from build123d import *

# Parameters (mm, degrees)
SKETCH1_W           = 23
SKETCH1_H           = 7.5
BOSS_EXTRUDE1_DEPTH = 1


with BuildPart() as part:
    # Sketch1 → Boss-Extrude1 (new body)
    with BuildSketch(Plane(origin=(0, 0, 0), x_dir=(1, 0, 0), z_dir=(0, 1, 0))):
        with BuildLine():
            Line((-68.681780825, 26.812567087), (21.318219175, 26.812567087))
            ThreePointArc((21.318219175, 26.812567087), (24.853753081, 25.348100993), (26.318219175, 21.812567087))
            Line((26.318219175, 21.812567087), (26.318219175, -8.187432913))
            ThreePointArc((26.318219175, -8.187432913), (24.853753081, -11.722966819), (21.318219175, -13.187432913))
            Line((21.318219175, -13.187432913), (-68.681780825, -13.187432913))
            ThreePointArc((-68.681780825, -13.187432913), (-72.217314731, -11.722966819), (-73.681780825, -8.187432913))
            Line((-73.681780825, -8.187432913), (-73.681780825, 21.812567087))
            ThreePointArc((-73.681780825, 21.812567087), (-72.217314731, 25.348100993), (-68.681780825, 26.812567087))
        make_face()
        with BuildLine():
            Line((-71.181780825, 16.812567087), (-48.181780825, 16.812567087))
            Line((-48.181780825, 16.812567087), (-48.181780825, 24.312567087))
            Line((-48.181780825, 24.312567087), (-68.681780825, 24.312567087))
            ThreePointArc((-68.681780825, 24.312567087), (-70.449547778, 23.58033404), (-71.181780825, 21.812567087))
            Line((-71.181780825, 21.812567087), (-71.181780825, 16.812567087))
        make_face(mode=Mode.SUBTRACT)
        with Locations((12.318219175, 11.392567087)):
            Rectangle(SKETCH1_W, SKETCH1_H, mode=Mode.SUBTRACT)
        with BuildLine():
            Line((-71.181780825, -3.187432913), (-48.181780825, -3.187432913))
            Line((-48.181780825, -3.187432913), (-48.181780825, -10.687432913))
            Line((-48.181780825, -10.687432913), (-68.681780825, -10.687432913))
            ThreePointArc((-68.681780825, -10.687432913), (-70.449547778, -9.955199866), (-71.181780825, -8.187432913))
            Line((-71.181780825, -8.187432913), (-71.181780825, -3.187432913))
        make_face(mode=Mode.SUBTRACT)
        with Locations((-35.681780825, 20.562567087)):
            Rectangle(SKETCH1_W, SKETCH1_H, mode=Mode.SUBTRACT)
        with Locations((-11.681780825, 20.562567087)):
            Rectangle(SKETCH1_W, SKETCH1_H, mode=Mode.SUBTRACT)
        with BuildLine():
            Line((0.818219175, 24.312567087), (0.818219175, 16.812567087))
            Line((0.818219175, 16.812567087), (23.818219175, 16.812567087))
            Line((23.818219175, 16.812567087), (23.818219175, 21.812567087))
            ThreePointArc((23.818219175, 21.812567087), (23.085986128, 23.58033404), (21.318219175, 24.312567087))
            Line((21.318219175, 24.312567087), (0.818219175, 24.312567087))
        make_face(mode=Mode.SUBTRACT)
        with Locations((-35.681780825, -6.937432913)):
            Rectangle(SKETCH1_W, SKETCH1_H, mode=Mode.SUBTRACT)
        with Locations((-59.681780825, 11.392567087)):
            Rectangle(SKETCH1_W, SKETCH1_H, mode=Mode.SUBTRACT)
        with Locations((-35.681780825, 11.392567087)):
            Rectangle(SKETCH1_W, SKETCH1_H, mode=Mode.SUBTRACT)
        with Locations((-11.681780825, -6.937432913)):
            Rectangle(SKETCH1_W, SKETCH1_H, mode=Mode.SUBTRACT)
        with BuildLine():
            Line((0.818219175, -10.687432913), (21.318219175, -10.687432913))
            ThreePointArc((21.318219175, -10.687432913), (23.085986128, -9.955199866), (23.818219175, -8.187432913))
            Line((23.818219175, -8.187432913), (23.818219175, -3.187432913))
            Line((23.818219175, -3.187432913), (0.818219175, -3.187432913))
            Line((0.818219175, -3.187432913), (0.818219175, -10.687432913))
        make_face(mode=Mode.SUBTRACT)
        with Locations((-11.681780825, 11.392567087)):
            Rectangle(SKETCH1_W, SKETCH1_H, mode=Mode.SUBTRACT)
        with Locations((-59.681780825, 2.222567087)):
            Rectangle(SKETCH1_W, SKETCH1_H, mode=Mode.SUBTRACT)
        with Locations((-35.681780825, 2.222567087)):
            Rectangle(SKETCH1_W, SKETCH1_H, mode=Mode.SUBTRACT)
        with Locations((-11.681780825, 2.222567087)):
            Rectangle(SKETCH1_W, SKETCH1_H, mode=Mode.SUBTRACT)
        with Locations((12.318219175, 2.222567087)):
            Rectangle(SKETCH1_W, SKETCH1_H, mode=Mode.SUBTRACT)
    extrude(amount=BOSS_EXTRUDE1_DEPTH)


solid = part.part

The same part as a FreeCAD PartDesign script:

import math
import FreeCAD as App
import Part
import Sketcher
from FreeCAD import Vector

doc = App.newDocument("Part")
params = doc.addObject("Spreadsheet::Sheet", "Params")
for row, (alias, value) in enumerate([
    ("sketch1_radius", "5 mm"),
    ("sketch1_radius2", "2.5 mm"),
    ("sketch1_width", "90 mm"),
    ("sketch1_width2", "23 mm"),
    ("sketch1_height", "30 mm"),
    ("pad1_length", "1 mm"),
], start=1):
    params.set(f"A{row}", alias)
    params.set(f"B{row}", "=" + value)
    params.setAlias(f"B{row}", alias)

body = doc.addObject("PartDesign::Body", "Body")

sketch1 = body.newObject("Sketcher::SketchObject", "Sketch")
sketch1.AttachmentSupport = (doc.getObject("XZ_Plane"), [""])
sketch1.MapMode = "FlatFace"
sketch1.addGeometry([
    Part.LineSegment(Vector(21.318219, -26.812567, 0), Vector(-68.681781, -26.812567, 0)),
    Part.ArcOfCircle(Part.Circle(Vector(-68.681781, -21.812567, 0), Vector(0, 0, 1), 5), math.radians(180), math.radians(270)),
    Part.LineSegment(Vector(-73.681781, -21.812567, 0), Vector(-73.681781, 8.187433, 0)),
    Part.ArcOfCircle(Part.Circle(Vector(-68.681781, 8.187433, 0), Vector(0, 0, 1), 5), math.radians(90), math.radians(180)),
    Part.LineSegment(Vector(-68.681781, 13.187433, 0), Vector(21.318219, 13.187433, 0)),
    Part.ArcOfCircle(Part.Circle(Vector(21.318219, 8.187433, 0), Vector(0, 0, 1), 5), math.radians(0), math.radians(90)),
    Part.LineSegment(Vector(26.318219, 8.187433, 0), Vector(26.318219, -21.812567, 0)),
    Part.ArcOfCircle(Part.Circle(Vector(21.318219, -21.812567, 0), Vector(0, 0, 1), 5), math.radians(-90), math.radians(0)),
    Part.LineSegment(Vector(0.818219, 10.687433, 0), Vector(0.818219, 3.187433, 0)),
    Part.LineSegment(Vector(0.818219, 3.187433, 0), Vector(23.818219, 3.187433, 0)),
    Part.LineSegment(Vector(23.818219, 3.187433, 0), Vector(23.818219, 8.187433, 0)),
    Part.ArcOfCircle(Part.Circle(Vector(21.318219, 8.187433, 0), Vector(0, 0, 1), 2.5), math.radians(0), math.radians(90)),
    Part.LineSegment(Vector(21.318219, 10.687433, 0), Vector(0.818219, 10.687433, 0)),
    Part.LineSegment(Vector(-23.181781, 10.687433, 0), Vector(-23.181781, 3.187433, 0)),
    Part.LineSegment(Vector(-23.181781, 3.187433, 0), Vector(-0.181781, 3.187433, 0)),
    Part.LineSegment(Vector(-0.181781, 3.187433, 0), Vector(-0.181781, 10.687433, 0)),
    Part.LineSegment(Vector(-0.181781, 10.687433, 0), Vector(-23.181781, 10.687433, 0)),
    Part.LineSegment(Vector(0.818219, 1.527433, 0), Vector(0.818219, -5.972567, 0)),
    Part.LineSegment(Vector(0.818219, -5.972567, 0), Vector(23.818219, -5.972567, 0)),
    Part.LineSegment(Vector(23.818219, -5.972567, 0), Vector(23.818219, 1.527433, 0)),
    Part.LineSegment(Vector(23.818219, 1.527433, 0), Vector(0.818219, 1.527433, 0)),
    Part.LineSegment(Vector(-23.181781, 1.527433, 0), Vector(-23.181781, -5.972567, 0)),
    Part.LineSegment(Vector(-23.181781, -5.972567, 0), Vector(-0.181781, -5.972567, 0)),
    Part.LineSegment(Vector(-0.181781, -5.972567, 0), Vector(-0.181781, 1.527433, 0)),
    Part.LineSegment(Vector(-0.181781, 1.527433, 0), Vector(-23.181781, 1.527433, 0)),
    Part.LineSegment(Vector(-47.181781, 10.687433, 0), Vector(-47.181781, 3.187433, 0)),
    Part.LineSegment(Vector(-47.181781, 3.187433, 0), Vector(-24.181781, 3.187433, 0)),
    Part.LineSegment(Vector(-24.181781, 3.187433, 0), Vector(-24.181781, 10.687433, 0)),
    Part.LineSegment(Vector(-24.181781, 10.687433, 0), Vector(-47.181781, 10.687433, 0)),
    Part.LineSegment(Vector(-71.181781, 3.187433, 0), Vector(-48.181781, 3.187433, 0)),
    Part.LineSegment(Vector(-48.181781, 3.187433, 0), Vector(-48.181781, 10.687433, 0)),
    Part.LineSegment(Vector(-48.181781, 10.687433, 0), Vector(-68.681781, 10.687433, 0)),
    Part.ArcOfCircle(Part.Circle(Vector(-68.681781, 8.187433, 0), Vector(0, 0, 1), 2.5), math.radians(90), math.radians(180)),
    Part.LineSegment(Vector(-71.181781, 8.187433, 0), Vector(-71.181781, 3.187433, 0)),
    Part.LineSegment(Vector(-47.181781, 1.527433, 0), Vector(-47.181781, -5.972567, 0)),
    Part.LineSegment(Vector(-47.181781, -5.972567, 0), Vector(-24.181781, -5.972567, 0)),
    Part.LineSegment(Vector(-24.181781, -5.972567, 0), Vector(-24.181781, 1.527433, 0)),
    Part.LineSegment(Vector(-24.181781, 1.527433, 0), Vector(-47.181781, 1.527433, 0)),
    Part.LineSegment(Vector(-71.181781, 1.527433, 0), Vector(-71.181781, -5.972567, 0)),
    Part.LineSegment(Vector(-71.181781, -5.972567, 0), Vector(-48.181781, -5.972567, 0)),
    Part.LineSegment(Vector(-48.181781, -5.972567, 0), Vector(-48.181781, 1.527433, 0)),
    Part.LineSegment(Vector(-48.181781, 1.527433, 0), Vector(-71.181781, 1.527433, 0)),
    Part.LineSegment(Vector(0.818219, -7.642567, 0), Vector(0.818219, -15.142567, 0)),
    Part.LineSegment(Vector(0.818219, -15.142567, 0), Vector(23.818219, -15.142567, 0)),
    Part.LineSegment(Vector(23.818219, -15.142567, 0), Vector(23.818219, -7.642567, 0)),
    Part.LineSegment(Vector(23.818219, -7.642567, 0), Vector(0.818219, -7.642567, 0)),
    Part.LineSegment(Vector(-23.181781, -7.642567, 0), Vector(-23.181781, -15.142567, 0)),
    Part.LineSegment(Vector(-23.181781, -15.142567, 0), Vector(-0.181781, -15.142567, 0)),
    Part.LineSegment(Vector(-0.181781, -15.142567, 0), Vector(-0.181781, -7.642567, 0)),
    Part.LineSegment(Vector(-0.181781, -7.642567, 0), Vector(-23.181781, -7.642567, 0)),
    Part.LineSegment(Vector(0.818219, -24.312567, 0), Vector(21.318219, -24.312567, 0)),
    Part.ArcOfCircle(Part.Circle(Vector(21.318219, -21.812567, 0), Vector(0, 0, 1), 2.5), math.radians(-90), math.radians(0)),
    Part.LineSegment(Vector(23.818219, -21.812567, 0), Vector(23.818219, -16.812567, 0)),
    Part.LineSegment(Vector(23.818219, -16.812567, 0), Vector(0.818219, -16.812567, 0)),
    Part.LineSegment(Vector(0.818219, -16.812567, 0), Vector(0.818219, -24.312567, 0)),
    Part.LineSegment(Vector(-23.181781, -16.812567, 0), Vector(-23.181781, -24.312567, 0)),
    Part.LineSegment(Vector(-23.181781, -24.312567, 0), Vector(-0.181781, -24.312567, 0)),
    Part.LineSegment(Vector(-0.181781, -24.312567, 0), Vector(-0.181781, -16.812567, 0)),
    Part.LineSegment(Vector(-0.181781, -16.812567, 0), Vector(-23.181781, -16.812567, 0)),
    Part.LineSegment(Vector(-47.181781, -7.642567, 0), Vector(-47.181781, -15.142567, 0)),
    Part.LineSegment(Vector(-47.181781, -15.142567, 0), Vector(-24.181781, -15.142567, 0)),
    Part.LineSegment(Vector(-24.181781, -15.142567, 0), Vector(-24.181781, -7.642567, 0)),
    Part.LineSegment(Vector(-24.181781, -7.642567, 0), Vector(-47.181781, -7.642567, 0)),
    Part.LineSegment(Vector(-71.181781, -7.642567, 0), Vector(-71.181781, -15.142567, 0)),
    Part.LineSegment(Vector(-71.181781, -15.142567, 0), Vector(-48.181781, -15.142567, 0)),
    Part.LineSegment(Vector(-48.181781, -15.142567, 0), Vector(-48.181781, -7.642567, 0)),
    Part.LineSegment(Vector(-48.181781, -7.642567, 0), Vector(-71.181781, -7.642567, 0)),
    Part.LineSegment(Vector(-47.181781, -16.812567, 0), Vector(-47.181781, -24.312567, 0)),
    Part.LineSegment(Vector(-47.181781, -24.312567, 0), Vector(-24.181781, -24.312567, 0)),
    Part.LineSegment(Vector(-24.181781, -24.312567, 0), Vector(-24.181781, -16.812567, 0)),
    Part.LineSegment(Vector(-24.181781, -16.812567, 0), Vector(-47.181781, -16.812567, 0)),
    Part.LineSegment(Vector(-71.181781, -16.812567, 0), Vector(-71.181781, -21.812567, 0)),
    Part.ArcOfCircle(Part.Circle(Vector(-68.681781, -21.812567, 0), Vector(0, 0, 1), 2.5), math.radians(180), math.radians(270)),
    Part.LineSegment(Vector(-68.681781, -24.312567, 0), Vector(-48.181781, -24.312567, 0)),
    Part.LineSegment(Vector(-48.181781, -24.312567, 0), Vector(-48.181781, -16.812567, 0)),
    Part.LineSegment(Vector(-48.181781, -16.812567, 0), Vector(-71.181781, -16.812567, 0)),
], False)
sketch1.addConstraint([
    Sketcher.Constraint("Tangent", 0, 2, 1, 2),
    Sketcher.Constraint("Tangent", 1, 1, 2, 1),
    Sketcher.Constraint("Tangent", 2, 2, 3, 2),
    Sketcher.Constraint("Tangent", 3, 1, 4, 1),
    Sketcher.Constraint("Tangent", 4, 2, 5, 2),
    Sketcher.Constraint("Tangent", 5, 1, 6, 1),
    Sketcher.Constraint("Tangent", 6, 2, 7, 2),
    Sketcher.Constraint("Tangent", 7, 1, 0, 1),
    Sketcher.Constraint("Coincident", 8, 2, 9, 1),
    Sketcher.Constraint("Coincident", 9, 2, 10, 1),
    Sketcher.Constraint("Tangent", 10, 2, 11, 1),
    Sketcher.Constraint("Tangent", 11, 2, 12, 1),
    Sketcher.Constraint("Coincident", 12, 2, 8, 1),
    Sketcher.Constraint("Coincident", 13, 2, 14, 1),
    Sketcher.Constraint("Coincident", 14, 2, 15, 1),
    Sketcher.Constraint("Coincident", 15, 2, 16, 1),
    Sketcher.Constraint("Coincident", 16, 2, 13, 1),
    Sketcher.Constraint("Coincident", 17, 2, 18, 1),
    Sketcher.Constraint("Coincident", 18, 2, 19, 1),
    Sketcher.Constraint("Coincident", 19, 2, 20, 1),
    Sketcher.Constraint("Coincident", 20, 2, 17, 1),
    Sketcher.Constraint("Coincident", 21, 2, 22, 1),
    Sketcher.Constraint("Coincident", 22, 2, 23, 1),
    Sketcher.Constraint("Coincident", 23, 2, 24, 1),
    Sketcher.Constraint("Coincident", 24, 2, 21, 1),
    Sketcher.Constraint("Coincident", 25, 2, 26, 1),
    Sketcher.Constraint("Coincident", 26, 2, 27, 1),
    Sketcher.Constraint("Coincident", 27, 2, 28, 1),
    Sketcher.Constraint("Coincident", 28, 2, 25, 1),
    Sketcher.Constraint("Coincident", 29, 2, 30, 1),
    Sketcher.Constraint("Coincident", 30, 2, 31, 1),
    Sketcher.Constraint("Tangent", 31, 2, 32, 1),
    Sketcher.Constraint("Tangent", 32, 2, 33, 1),
    Sketcher.Constraint("Coincident", 33, 2, 29, 1),
    Sketcher.Constraint("Coincident", 34, 2, 35, 1),
    Sketcher.Constraint("Coincident", 35, 2, 36, 1),
    Sketcher.Constraint("Coincident", 36, 2, 37, 1),
    Sketcher.Constraint("Coincident", 37, 2, 34, 1),
    Sketcher.Constraint("Coincident", 38, 2, 39, 1),
    Sketcher.Constraint("Coincident", 39, 2, 40, 1),
    Sketcher.Constraint("Coincident", 40, 2, 41, 1),
    Sketcher.Constraint("Coincident", 41, 2, 38, 1),
    Sketcher.Constraint("Coincident", 42, 2, 43, 1),
    Sketcher.Constraint("Coincident", 43, 2, 44, 1),
    Sketcher.Constraint("Coincident", 44, 2, 45, 1),
    Sketcher.Constraint("Coincident", 45, 2, 42, 1),
    Sketcher.Constraint("Coincident", 46, 2, 47, 1),
    Sketcher.Constraint("Coincident", 47, 2, 48, 1),
    Sketcher.Constraint("Coincident", 48, 2, 49, 1),
    Sketcher.Constraint("Coincident", 49, 2, 46, 1),
    Sketcher.Constraint("Tangent", 50, 2, 51, 1),
    Sketcher.Constraint("Tangent", 51, 2, 52, 1),
    Sketcher.Constraint("Coincident", 52, 2, 53, 1),
    Sketcher.Constraint("Coincident", 53, 2, 54, 1),
    Sketcher.Constraint("Coincident", 54, 2, 50, 1),
    Sketcher.Constraint("Coincident", 55, 2, 56, 1),
    Sketcher.Constraint("Coincident", 56, 2, 57, 1),
    Sketcher.Constraint("Coincident", 57, 2, 58, 1),
    Sketcher.Constraint("Coincident", 58, 2, 55, 1),
    Sketcher.Constraint("Coincident", 59, 2, 60, 1),
    Sketcher.Constraint("Coincident", 60, 2, 61, 1),
    Sketcher.Constraint("Coincident", 61, 2, 62, 1),
    Sketcher.Constraint("Coincident", 62, 2, 59, 1),
    Sketcher.Constraint("Coincident", 63, 2, 64, 1),
    Sketcher.Constraint("Coincident", 64, 2, 65, 1),
    Sketcher.Constraint("Coincident", 65, 2, 66, 1),
    Sketcher.Constraint("Coincident", 66, 2, 63, 1),
    Sketcher.Constraint("Coincident", 67, 2, 68, 1),
    Sketcher.Constraint("Coincident", 68, 2, 69, 1),
    Sketcher.Constraint("Coincident", 69, 2, 70, 1),
    Sketcher.Constraint("Coincident", 70, 2, 67, 1),
    Sketcher.Constraint("Tangent", 71, 2, 72, 1),
    Sketcher.Constraint("Tangent", 72, 2, 73, 1),
    Sketcher.Constraint("Coincident", 73, 2, 74, 1),
    Sketcher.Constraint("Coincident", 74, 2, 75, 1),
    Sketcher.Constraint("Coincident", 75, 2, 71, 1),
    Sketcher.Constraint("Horizontal", 0),
    Sketcher.Constraint("Vertical", 2),
    Sketcher.Constraint("Horizontal", 4),
    Sketcher.Constraint("Vertical", 6),
    Sketcher.Constraint("Vertical", 8),
    Sketcher.Constraint("Horizontal", 9),
    Sketcher.Constraint("Vertical", 10),
    Sketcher.Constraint("Horizontal", 12),
    Sketcher.Constraint("Vertical", 13),
    Sketcher.Constraint("Horizontal", 14),
    Sketcher.Constraint("Vertical", 15),
    Sketcher.Constraint("Horizontal", 16),
    Sketcher.Constraint("Vertical", 17),
    Sketcher.Constraint("Horizontal", 18),
    Sketcher.Constraint("Vertical", 19),
    Sketcher.Constraint("Horizontal", 20),
    Sketcher.Constraint("Vertical", 21),
    Sketcher.Constraint("Horizontal", 22),
    Sketcher.Constraint("Vertical", 23),
    Sketcher.Constraint("Horizontal", 24),
    Sketcher.Constraint("Vertical", 25),
    Sketcher.Constraint("Horizontal", 26),
    Sketcher.Constraint("Vertical", 27),
    Sketcher.Constraint("Horizontal", 28),
    Sketcher.Constraint("Horizontal", 29),
    Sketcher.Constraint("Vertical", 30),
    Sketcher.Constraint("Horizontal", 31),
    Sketcher.Constraint("Vertical", 33),
    Sketcher.Constraint("Vertical", 34),
    Sketcher.Constraint("Horizontal", 35),
    Sketcher.Constraint("Vertical", 36),
    Sketcher.Constraint("Horizontal", 37),
    Sketcher.Constraint("Vertical", 38),
    Sketcher.Constraint("Horizontal", 39),
    Sketcher.Constraint("Vertical", 40),
    Sketcher.Constraint("Horizontal", 41),
    Sketcher.Constraint("Vertical", 42),
    Sketcher.Constraint("Horizontal", 43),
    Sketcher.Constraint("Vertical", 44),
    Sketcher.Constraint("Horizontal", 45),
    Sketcher.Constraint("Vertical", 46),
    Sketcher.Constraint("Horizontal", 47),
    Sketcher.Constraint("Vertical", 48),
    Sketcher.Constraint("Horizontal", 49),
    Sketcher.Constraint("Horizontal", 50),
    Sketcher.Constraint("Vertical", 52),
    Sketcher.Constraint("Horizontal", 53),
    Sketcher.Constraint("Vertical", 54),
    Sketcher.Constraint("Vertical", 55),
    Sketcher.Constraint("Horizontal", 56),
    Sketcher.Constraint("Vertical", 57),
    Sketcher.Constraint("Horizontal", 58),
    Sketcher.Constraint("Vertical", 59),
    Sketcher.Constraint("Horizontal", 60),
    Sketcher.Constraint("Vertical", 61),
    Sketcher.Constraint("Horizontal", 62),
    Sketcher.Constraint("Vertical", 63),
    Sketcher.Constraint("Horizontal", 64),
    Sketcher.Constraint("Vertical", 65),
    Sketcher.Constraint("Horizontal", 66),
    Sketcher.Constraint("Vertical", 67),
    Sketcher.Constraint("Horizontal", 68),
    Sketcher.Constraint("Vertical", 69),
    Sketcher.Constraint("Horizontal", 70),
    Sketcher.Constraint("Vertical", 71),
    Sketcher.Constraint("Horizontal", 73),
    Sketcher.Constraint("Vertical", 74),
    Sketcher.Constraint("Horizontal", 75),
    Sketcher.Constraint("Coincident", 11, 3, 5, 3),
    Sketcher.Constraint("Coincident", 32, 3, 3, 3),
    Sketcher.Constraint("Coincident", 51, 3, 7, 3),
    Sketcher.Constraint("Coincident", 72, 3, 1, 3),
    Sketcher.Constraint("Equal", 1, 3),
    Sketcher.Constraint("Equal", 3, 5),
    Sketcher.Constraint("Equal", 5, 7),
    Sketcher.Constraint("Equal", 11, 32),
    Sketcher.Constraint("Equal", 32, 51),
    Sketcher.Constraint("Equal", 51, 72),
    Sketcher.Constraint("Horizontal", 9, 2, 13, 2),
    Sketcher.Constraint("Horizontal", 12, 2, 15, 2),
    Sketcher.Constraint("Horizontal", 18, 2, 21, 2),
    Sketcher.Constraint("Horizontal", 20, 2, 23, 2),
    Sketcher.Constraint("Horizontal", 14, 2, 25, 2),
    Sketcher.Constraint("Horizontal", 16, 2, 27, 2),
    Sketcher.Constraint("Horizontal", 26, 2, 29, 2),
    Sketcher.Constraint("Horizontal", 22, 2, 34, 2),
    Sketcher.Constraint("Horizontal", 24, 2, 36, 2),
    Sketcher.Constraint("Horizontal", 35, 2, 38, 2),
    Sketcher.Constraint("Horizontal", 37, 2, 40, 2),
    Sketcher.Constraint("Horizontal", 43, 2, 46, 2),
    Sketcher.Constraint("Horizontal", 45, 2, 48, 2),
    Sketcher.Constraint("Horizontal", 54, 2, 55, 2),
    Sketcher.Constraint("Horizontal", 53, 2, 57, 2),
    Sketcher.Constraint("Horizontal", 47, 2, 59, 2),
    Sketcher.Constraint("Horizontal", 49, 2, 61, 2),
    Sketcher.Constraint("Horizontal", 60, 2, 63, 2),
    Sketcher.Constraint("Horizontal", 62, 2, 65, 2),
    Sketcher.Constraint("Horizontal", 56, 2, 67, 2),
    Sketcher.Constraint("Horizontal", 58, 2, 69, 2),
    Sketcher.Constraint("Horizontal", 70, 2, 74, 2),
    Sketcher.Constraint("Vertical", 12, 2, 17, 2),
    Sketcher.Constraint("Vertical", 10, 2, 18, 2),
    Sketcher.Constraint("Vertical", 16, 2, 21, 2),
    Sketcher.Constraint("Vertical", 15, 2, 22, 2),
    Sketcher.Constraint("Vertical", 28, 2, 34, 2),
    Sketcher.Constraint("Vertical", 27, 2, 35, 2),
    Sketcher.Constraint("Vertical", 33, 2, 38, 2),
    Sketcher.Constraint("Vertical", 30, 2, 39, 2),
    Sketcher.Constraint("Vertical", 20, 2, 42, 2),
    Sketcher.Constraint("Vertical", 19, 2, 43, 2),
    Sketcher.Constraint("Vertical", 24, 2, 46, 2),
    Sketcher.Constraint("Vertical", 23, 2, 47, 2),
    Sketcher.Constraint("Vertical", 45, 2, 53, 2),
    Sketcher.Constraint("Vertical", 49, 2, 55, 2),
    Sketcher.Constraint("Vertical", 48, 2, 56, 2),
    Sketcher.Constraint("Vertical", 37, 2, 59, 2),
    Sketcher.Constraint("Vertical", 36, 2, 60, 2),
    Sketcher.Constraint("Vertical", 41, 2, 63, 2),
    Sketcher.Constraint("Vertical", 40, 2, 64, 2),
    Sketcher.Constraint("Vertical", 62, 2, 67, 2),
    Sketcher.Constraint("Vertical", 61, 2, 68, 2),
    Sketcher.Constraint("Vertical", 65, 2, 73, 2),
    Sketcher.Constraint("Equal", 9, 14),
    Sketcher.Constraint("Equal", 24, 26),
    Sketcher.Constraint("Equal", 28, 29),
    Sketcher.Constraint("Equal", 15, 17),
    Sketcher.Constraint("Equal", 40, 42),
    Sketcher.Constraint("Equal", 33, 52),
    Sketcher.Constraint("Radius", 1, 5.0),
    Sketcher.Constraint("Radius", 11, 2.5),
    Sketcher.Constraint("DistanceX", 0, 2, 0, 1, 90.0),
    Sketcher.Constraint("DistanceX", 9, 1, 9, 2, 23.0),
    Sketcher.Constraint("DistanceY", 2, 1, 2, 2, 30.0),
    Sketcher.Constraint("DistanceY", 10, 1, 10, 2, 5.0),
    Sketcher.Constraint("DistanceX", 1, 3, -1, 1, 68.681781),
    Sketcher.Constraint("DistanceX", 13, 2, -1, 1, 23.181781),
    Sketcher.Constraint("DistanceX", 25, 2, -1, 1, 47.181781),
    Sketcher.Constraint("DistanceY", 1, 3, -1, 1, 21.812567),
    Sketcher.Constraint("DistanceY", 17, 2, -1, 1, 5.972567),
    Sketcher.Constraint("DistanceY", 42, 2, -1, 1, 15.142567),
])
sketch1.setExpression("Constraints[204]", "Params.sketch1_radius")
sketch1.setExpression("Constraints[205]", "Params.sketch1_radius2")
sketch1.setExpression("Constraints[206]", "Params.sketch1_width")
sketch1.setExpression("Constraints[207]", "Params.sketch1_width2")
sketch1.setExpression("Constraints[208]", "Params.sketch1_height")
pad1 = body.newObject("PartDesign::Pad", "Pad")
pad1.Profile = sketch1
pad1.setExpression("Length", "Params.pad1_length")
pad1.Reversed = True

doc.recompute()
